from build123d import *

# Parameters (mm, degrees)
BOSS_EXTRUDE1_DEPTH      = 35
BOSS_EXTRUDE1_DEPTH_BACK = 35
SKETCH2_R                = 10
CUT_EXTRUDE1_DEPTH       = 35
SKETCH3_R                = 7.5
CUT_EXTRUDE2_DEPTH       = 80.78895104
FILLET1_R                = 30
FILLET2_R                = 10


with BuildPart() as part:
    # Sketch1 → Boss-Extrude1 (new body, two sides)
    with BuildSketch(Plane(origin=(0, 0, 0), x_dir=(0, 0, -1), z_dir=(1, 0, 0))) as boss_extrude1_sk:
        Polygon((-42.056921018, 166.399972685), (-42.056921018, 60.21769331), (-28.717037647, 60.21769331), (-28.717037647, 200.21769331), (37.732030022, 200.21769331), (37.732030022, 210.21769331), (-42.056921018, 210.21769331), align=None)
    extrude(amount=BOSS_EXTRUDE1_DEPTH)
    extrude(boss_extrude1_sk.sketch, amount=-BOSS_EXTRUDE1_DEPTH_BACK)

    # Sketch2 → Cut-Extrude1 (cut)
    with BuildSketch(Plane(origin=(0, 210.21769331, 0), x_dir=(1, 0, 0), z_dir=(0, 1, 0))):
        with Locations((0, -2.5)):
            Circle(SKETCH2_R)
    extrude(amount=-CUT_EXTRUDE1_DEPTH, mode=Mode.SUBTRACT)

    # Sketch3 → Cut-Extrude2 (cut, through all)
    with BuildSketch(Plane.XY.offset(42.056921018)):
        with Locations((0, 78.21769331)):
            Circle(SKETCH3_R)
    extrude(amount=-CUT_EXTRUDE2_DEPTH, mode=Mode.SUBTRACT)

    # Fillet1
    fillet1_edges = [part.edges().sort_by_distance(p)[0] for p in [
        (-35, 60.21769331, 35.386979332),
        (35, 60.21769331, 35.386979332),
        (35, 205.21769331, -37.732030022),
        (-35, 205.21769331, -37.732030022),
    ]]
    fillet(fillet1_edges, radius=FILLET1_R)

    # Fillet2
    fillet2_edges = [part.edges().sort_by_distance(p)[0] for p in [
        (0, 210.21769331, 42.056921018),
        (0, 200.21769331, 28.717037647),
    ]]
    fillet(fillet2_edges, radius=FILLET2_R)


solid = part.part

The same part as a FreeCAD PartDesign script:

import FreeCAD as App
import Part
import Sketcher
Q = App.Units.Quantity


def edges_at(feature, points):
    """Names of the edges that pass closest to the given points."""
    edges = feature.Shape.Edges
    near = lambda p: min(range(len(edges)), key=lambda i: edges[i].distToShape(Part.Vertex(*p))[0])
    return sorted({f"Edge{near(p) + 1}" for p in points})

doc = App.newDocument("Part")
params = doc.addObject("Spreadsheet::Sheet", "Params")
for row, (alias, value) in enumerate([
    ("sketch1_width", "140 mm"),
    ("sketch1_width2", "10 mm"),
    ("pad1_length", "35 mm"),
    ("pad1_length2", "35 mm"),
    ("sketch2_diameter", "20 mm"),
    ("pocket1_length", "35 mm"),
    ("sketch3_diameter", "15 mm"),
    ("fillet_radius", "30 mm"),
    ("fillet2_radius", "10 mm"),
], start=1):
    params.set(f"A{row}", alias)
    params.set(f"B{row}", "=" + value)
    params.setAlias(f"B{row}", alias)

body = doc.addObject("PartDesign::Body", "Body")

# Sketch on YZ plane
sketch1 = doc.addObject("Sketcher::SketchObject", "Sketch")
body.addObject(sketch1)
sketch1.AttachmentSupport = (doc.YZ_Plane, [""])
sketch1.MapMode = "FlatFace"
sketch1.addGeometry(Part.LineSegment(App.Vector(60, 42, 0), App.Vector(60, 29, 0)), False)
sketch1.addGeometry(Part.LineSegment(App.Vector(60, 29, 0), App.Vector(200, 29, 0)), False)
sketch1.addGeometry(Part.LineSegment(App.Vector(200, 29, 0), App.Vector(200, -38, 0)), False)
sketch1.addGeometry(Part.LineSegment(App.Vector(200, -38, 0), App.Vector(210, -38, 0)), False)
sketch1.addGeometry(Part.LineSegment(App.Vector(210, -38, 0), App.Vector(210, 42, 0)), False)
sketch1.addGeometry(Part.LineSegment(App.Vector(210, 42, 0), App.Vector(60, 42, 0)), False)
sketch1.addConstraint(Sketcher.Constraint("Coincident", 0, 2, 1, 1))
sketch1.addConstraint(Sketcher.Constraint("Coincident", 1, 2, 2, 1))
sketch1.addConstraint(Sketcher.Constraint("Coincident", 2, 2, 3, 1))
sketch1.addConstraint(Sketcher.Constraint("Coincident", 3, 2, 4, 1))
sketch1.addConstraint(Sketcher.Constraint("Coincident", 4, 2, 5, 1))
sketch1.addConstraint(Sketcher.Constraint("Coincident", 5, 2, 0, 1))
sketch1.addConstraint(Sketcher.Constraint("Vertical", 0))
sketch1.addConstraint(Sketcher.Constraint("Horizontal", 1))
sketch1.addConstraint(Sketcher.Constraint("Vertical", 2))
sketch1.addConstraint(Sketcher.Constraint("Horizontal", 3))
sketch1.addConstraint(Sketcher.Constraint("Vertical", 4))
sketch1.addConstraint(Sketcher.Constraint("Horizontal", 5))
sketch1.addConstraint(Sketcher.Constraint("DistanceX", 1, 1, 1, 2, Q("140 mm")))
sketch1.addConstraint(Sketcher.Constraint("DistanceX", 3, 1, 3, 2, Q("10 mm")))
sketch1.addConstraint(Sketcher.Constraint("DistanceY", 4, 1, 4, 2, Q("79.788951 mm")))
sketch1.addConstraint(Sketcher.Constraint("DistanceY", 0, 2, 0, 1, Q("13.339883 mm")))
sketch1.addConstraint(Sketcher.Constraint("DistanceY", 2, 2, -1, 1, Q("37.73203 mm")))
sketch1.addConstraint(Sketcher.Constraint("DistanceX", -1, 1, 0, 2, Q("60.217693 mm")))
sketch1.setExpression("Constraints[12]", "Params.sketch1_width")
sketch1.setExpression("Constraints[13]", "Params.sketch1_width2")
pad1 = doc.addObject("PartDesign::Pad", "Pad")
body.addObject(pad1)
pad1.Profile = sketch1
pad1.Type = "TwoLengths"
pad1.setExpression("Length", "Params.pad1_length")
pad1.setExpression("Length2", "Params.pad1_length2")

# Sketch on XZ plane
sketch2 = doc.addObject("Sketcher::SketchObject", "Sketch001")
body.addObject(sketch2)
sketch2.AttachmentSupport = (doc.XZ_Plane, [""])
sketch2.MapMode = "FlatFace"
sketch2.AttachmentOffset = App.Placement(App.Vector(0, 0, -210.217693), App.Rotation())
sketch2.addGeometry(Part.Circle(App.Vector(0, 2, 0), App.Vector(0, 0, 1), 10), False)
sketch2.addConstraint(Sketcher.Constraint("PointOnObject", 0, 3, -2))
sketch2.addConstraint(Sketcher.Constraint("Diameter", 0, Q("20 mm")))
sketch2.addConstraint(Sketcher.Constraint("DistanceY", -1, 1, 0, 3, Q("2.5 mm")))
sketch2.setExpression("Constraints[1]", "Params.sketch2_diameter")
pocket1 = doc.addObject("PartDesign::Pocket", "Pocket")
body.addObject(pocket1)
pocket1.Profile = sketch2
pocket1.setExpression("Length", "Params.pocket1_length")
pocket1.Reversed = True

# Sketch on XY plane
sketch3 = doc.addObject("Sketcher::SketchObject", "Sketch002")
body.addObject(sketch3)
sketch3.AttachmentSupport = (doc.XY_Plane, [""])
sketch3.MapMode = "FlatFace"
sketch3.AttachmentOffset = App.Placement(App.Vector(0, 0, 42.056921), App.Rotation())
sketch3.addGeometry(Part.Circle(App.Vector(0, 78, 0), App.Vector(0, 0, 1), 8), False)
sketch3.addConstraint(Sketcher.Constraint("PointOnObject", 0, 3, -2))
sketch3.addConstraint(Sketcher.Constraint("Diameter", 0, Q("15 mm")))
sketch3.addConstraint(Sketcher.Constraint("DistanceY", -1, 1, 0, 3, Q("78.217693 mm")))
sketch3.setExpression("Constraints[1]", "Params.sketch3_diameter")
pocket2 = doc.addObject("PartDesign::Pocket", "Pocket001")
body.addObject(pocket2)
pocket2.Profile = sketch3
pocket2.Type = "ThroughAll"
doc.recompute()

fillet = doc.addObject("PartDesign::Fillet", "Fillet")
body.addObject(fillet)
fillet.Base = (pocket2, edges_at(pocket2, [
    (-35, 60.218, 35.387),
    (35, 60.218, 35.387),
    (35, 205.218, -37.732),
    (-35, 205.218, -37.732),
]))
fillet.setExpression("Radius", "Params.fillet_radius")
doc.recompute()

fillet2 = doc.addObject("PartDesign::Fillet", "Fillet001")
body.addObject(fillet2)
fillet2.Base = (fillet, edges_at(fillet, [(0, 210.218, 42.057), (0, 200.218, 28.717)]))
fillet2.setExpression("Radius", "Params.fillet2_radius")

doc.recompute()
